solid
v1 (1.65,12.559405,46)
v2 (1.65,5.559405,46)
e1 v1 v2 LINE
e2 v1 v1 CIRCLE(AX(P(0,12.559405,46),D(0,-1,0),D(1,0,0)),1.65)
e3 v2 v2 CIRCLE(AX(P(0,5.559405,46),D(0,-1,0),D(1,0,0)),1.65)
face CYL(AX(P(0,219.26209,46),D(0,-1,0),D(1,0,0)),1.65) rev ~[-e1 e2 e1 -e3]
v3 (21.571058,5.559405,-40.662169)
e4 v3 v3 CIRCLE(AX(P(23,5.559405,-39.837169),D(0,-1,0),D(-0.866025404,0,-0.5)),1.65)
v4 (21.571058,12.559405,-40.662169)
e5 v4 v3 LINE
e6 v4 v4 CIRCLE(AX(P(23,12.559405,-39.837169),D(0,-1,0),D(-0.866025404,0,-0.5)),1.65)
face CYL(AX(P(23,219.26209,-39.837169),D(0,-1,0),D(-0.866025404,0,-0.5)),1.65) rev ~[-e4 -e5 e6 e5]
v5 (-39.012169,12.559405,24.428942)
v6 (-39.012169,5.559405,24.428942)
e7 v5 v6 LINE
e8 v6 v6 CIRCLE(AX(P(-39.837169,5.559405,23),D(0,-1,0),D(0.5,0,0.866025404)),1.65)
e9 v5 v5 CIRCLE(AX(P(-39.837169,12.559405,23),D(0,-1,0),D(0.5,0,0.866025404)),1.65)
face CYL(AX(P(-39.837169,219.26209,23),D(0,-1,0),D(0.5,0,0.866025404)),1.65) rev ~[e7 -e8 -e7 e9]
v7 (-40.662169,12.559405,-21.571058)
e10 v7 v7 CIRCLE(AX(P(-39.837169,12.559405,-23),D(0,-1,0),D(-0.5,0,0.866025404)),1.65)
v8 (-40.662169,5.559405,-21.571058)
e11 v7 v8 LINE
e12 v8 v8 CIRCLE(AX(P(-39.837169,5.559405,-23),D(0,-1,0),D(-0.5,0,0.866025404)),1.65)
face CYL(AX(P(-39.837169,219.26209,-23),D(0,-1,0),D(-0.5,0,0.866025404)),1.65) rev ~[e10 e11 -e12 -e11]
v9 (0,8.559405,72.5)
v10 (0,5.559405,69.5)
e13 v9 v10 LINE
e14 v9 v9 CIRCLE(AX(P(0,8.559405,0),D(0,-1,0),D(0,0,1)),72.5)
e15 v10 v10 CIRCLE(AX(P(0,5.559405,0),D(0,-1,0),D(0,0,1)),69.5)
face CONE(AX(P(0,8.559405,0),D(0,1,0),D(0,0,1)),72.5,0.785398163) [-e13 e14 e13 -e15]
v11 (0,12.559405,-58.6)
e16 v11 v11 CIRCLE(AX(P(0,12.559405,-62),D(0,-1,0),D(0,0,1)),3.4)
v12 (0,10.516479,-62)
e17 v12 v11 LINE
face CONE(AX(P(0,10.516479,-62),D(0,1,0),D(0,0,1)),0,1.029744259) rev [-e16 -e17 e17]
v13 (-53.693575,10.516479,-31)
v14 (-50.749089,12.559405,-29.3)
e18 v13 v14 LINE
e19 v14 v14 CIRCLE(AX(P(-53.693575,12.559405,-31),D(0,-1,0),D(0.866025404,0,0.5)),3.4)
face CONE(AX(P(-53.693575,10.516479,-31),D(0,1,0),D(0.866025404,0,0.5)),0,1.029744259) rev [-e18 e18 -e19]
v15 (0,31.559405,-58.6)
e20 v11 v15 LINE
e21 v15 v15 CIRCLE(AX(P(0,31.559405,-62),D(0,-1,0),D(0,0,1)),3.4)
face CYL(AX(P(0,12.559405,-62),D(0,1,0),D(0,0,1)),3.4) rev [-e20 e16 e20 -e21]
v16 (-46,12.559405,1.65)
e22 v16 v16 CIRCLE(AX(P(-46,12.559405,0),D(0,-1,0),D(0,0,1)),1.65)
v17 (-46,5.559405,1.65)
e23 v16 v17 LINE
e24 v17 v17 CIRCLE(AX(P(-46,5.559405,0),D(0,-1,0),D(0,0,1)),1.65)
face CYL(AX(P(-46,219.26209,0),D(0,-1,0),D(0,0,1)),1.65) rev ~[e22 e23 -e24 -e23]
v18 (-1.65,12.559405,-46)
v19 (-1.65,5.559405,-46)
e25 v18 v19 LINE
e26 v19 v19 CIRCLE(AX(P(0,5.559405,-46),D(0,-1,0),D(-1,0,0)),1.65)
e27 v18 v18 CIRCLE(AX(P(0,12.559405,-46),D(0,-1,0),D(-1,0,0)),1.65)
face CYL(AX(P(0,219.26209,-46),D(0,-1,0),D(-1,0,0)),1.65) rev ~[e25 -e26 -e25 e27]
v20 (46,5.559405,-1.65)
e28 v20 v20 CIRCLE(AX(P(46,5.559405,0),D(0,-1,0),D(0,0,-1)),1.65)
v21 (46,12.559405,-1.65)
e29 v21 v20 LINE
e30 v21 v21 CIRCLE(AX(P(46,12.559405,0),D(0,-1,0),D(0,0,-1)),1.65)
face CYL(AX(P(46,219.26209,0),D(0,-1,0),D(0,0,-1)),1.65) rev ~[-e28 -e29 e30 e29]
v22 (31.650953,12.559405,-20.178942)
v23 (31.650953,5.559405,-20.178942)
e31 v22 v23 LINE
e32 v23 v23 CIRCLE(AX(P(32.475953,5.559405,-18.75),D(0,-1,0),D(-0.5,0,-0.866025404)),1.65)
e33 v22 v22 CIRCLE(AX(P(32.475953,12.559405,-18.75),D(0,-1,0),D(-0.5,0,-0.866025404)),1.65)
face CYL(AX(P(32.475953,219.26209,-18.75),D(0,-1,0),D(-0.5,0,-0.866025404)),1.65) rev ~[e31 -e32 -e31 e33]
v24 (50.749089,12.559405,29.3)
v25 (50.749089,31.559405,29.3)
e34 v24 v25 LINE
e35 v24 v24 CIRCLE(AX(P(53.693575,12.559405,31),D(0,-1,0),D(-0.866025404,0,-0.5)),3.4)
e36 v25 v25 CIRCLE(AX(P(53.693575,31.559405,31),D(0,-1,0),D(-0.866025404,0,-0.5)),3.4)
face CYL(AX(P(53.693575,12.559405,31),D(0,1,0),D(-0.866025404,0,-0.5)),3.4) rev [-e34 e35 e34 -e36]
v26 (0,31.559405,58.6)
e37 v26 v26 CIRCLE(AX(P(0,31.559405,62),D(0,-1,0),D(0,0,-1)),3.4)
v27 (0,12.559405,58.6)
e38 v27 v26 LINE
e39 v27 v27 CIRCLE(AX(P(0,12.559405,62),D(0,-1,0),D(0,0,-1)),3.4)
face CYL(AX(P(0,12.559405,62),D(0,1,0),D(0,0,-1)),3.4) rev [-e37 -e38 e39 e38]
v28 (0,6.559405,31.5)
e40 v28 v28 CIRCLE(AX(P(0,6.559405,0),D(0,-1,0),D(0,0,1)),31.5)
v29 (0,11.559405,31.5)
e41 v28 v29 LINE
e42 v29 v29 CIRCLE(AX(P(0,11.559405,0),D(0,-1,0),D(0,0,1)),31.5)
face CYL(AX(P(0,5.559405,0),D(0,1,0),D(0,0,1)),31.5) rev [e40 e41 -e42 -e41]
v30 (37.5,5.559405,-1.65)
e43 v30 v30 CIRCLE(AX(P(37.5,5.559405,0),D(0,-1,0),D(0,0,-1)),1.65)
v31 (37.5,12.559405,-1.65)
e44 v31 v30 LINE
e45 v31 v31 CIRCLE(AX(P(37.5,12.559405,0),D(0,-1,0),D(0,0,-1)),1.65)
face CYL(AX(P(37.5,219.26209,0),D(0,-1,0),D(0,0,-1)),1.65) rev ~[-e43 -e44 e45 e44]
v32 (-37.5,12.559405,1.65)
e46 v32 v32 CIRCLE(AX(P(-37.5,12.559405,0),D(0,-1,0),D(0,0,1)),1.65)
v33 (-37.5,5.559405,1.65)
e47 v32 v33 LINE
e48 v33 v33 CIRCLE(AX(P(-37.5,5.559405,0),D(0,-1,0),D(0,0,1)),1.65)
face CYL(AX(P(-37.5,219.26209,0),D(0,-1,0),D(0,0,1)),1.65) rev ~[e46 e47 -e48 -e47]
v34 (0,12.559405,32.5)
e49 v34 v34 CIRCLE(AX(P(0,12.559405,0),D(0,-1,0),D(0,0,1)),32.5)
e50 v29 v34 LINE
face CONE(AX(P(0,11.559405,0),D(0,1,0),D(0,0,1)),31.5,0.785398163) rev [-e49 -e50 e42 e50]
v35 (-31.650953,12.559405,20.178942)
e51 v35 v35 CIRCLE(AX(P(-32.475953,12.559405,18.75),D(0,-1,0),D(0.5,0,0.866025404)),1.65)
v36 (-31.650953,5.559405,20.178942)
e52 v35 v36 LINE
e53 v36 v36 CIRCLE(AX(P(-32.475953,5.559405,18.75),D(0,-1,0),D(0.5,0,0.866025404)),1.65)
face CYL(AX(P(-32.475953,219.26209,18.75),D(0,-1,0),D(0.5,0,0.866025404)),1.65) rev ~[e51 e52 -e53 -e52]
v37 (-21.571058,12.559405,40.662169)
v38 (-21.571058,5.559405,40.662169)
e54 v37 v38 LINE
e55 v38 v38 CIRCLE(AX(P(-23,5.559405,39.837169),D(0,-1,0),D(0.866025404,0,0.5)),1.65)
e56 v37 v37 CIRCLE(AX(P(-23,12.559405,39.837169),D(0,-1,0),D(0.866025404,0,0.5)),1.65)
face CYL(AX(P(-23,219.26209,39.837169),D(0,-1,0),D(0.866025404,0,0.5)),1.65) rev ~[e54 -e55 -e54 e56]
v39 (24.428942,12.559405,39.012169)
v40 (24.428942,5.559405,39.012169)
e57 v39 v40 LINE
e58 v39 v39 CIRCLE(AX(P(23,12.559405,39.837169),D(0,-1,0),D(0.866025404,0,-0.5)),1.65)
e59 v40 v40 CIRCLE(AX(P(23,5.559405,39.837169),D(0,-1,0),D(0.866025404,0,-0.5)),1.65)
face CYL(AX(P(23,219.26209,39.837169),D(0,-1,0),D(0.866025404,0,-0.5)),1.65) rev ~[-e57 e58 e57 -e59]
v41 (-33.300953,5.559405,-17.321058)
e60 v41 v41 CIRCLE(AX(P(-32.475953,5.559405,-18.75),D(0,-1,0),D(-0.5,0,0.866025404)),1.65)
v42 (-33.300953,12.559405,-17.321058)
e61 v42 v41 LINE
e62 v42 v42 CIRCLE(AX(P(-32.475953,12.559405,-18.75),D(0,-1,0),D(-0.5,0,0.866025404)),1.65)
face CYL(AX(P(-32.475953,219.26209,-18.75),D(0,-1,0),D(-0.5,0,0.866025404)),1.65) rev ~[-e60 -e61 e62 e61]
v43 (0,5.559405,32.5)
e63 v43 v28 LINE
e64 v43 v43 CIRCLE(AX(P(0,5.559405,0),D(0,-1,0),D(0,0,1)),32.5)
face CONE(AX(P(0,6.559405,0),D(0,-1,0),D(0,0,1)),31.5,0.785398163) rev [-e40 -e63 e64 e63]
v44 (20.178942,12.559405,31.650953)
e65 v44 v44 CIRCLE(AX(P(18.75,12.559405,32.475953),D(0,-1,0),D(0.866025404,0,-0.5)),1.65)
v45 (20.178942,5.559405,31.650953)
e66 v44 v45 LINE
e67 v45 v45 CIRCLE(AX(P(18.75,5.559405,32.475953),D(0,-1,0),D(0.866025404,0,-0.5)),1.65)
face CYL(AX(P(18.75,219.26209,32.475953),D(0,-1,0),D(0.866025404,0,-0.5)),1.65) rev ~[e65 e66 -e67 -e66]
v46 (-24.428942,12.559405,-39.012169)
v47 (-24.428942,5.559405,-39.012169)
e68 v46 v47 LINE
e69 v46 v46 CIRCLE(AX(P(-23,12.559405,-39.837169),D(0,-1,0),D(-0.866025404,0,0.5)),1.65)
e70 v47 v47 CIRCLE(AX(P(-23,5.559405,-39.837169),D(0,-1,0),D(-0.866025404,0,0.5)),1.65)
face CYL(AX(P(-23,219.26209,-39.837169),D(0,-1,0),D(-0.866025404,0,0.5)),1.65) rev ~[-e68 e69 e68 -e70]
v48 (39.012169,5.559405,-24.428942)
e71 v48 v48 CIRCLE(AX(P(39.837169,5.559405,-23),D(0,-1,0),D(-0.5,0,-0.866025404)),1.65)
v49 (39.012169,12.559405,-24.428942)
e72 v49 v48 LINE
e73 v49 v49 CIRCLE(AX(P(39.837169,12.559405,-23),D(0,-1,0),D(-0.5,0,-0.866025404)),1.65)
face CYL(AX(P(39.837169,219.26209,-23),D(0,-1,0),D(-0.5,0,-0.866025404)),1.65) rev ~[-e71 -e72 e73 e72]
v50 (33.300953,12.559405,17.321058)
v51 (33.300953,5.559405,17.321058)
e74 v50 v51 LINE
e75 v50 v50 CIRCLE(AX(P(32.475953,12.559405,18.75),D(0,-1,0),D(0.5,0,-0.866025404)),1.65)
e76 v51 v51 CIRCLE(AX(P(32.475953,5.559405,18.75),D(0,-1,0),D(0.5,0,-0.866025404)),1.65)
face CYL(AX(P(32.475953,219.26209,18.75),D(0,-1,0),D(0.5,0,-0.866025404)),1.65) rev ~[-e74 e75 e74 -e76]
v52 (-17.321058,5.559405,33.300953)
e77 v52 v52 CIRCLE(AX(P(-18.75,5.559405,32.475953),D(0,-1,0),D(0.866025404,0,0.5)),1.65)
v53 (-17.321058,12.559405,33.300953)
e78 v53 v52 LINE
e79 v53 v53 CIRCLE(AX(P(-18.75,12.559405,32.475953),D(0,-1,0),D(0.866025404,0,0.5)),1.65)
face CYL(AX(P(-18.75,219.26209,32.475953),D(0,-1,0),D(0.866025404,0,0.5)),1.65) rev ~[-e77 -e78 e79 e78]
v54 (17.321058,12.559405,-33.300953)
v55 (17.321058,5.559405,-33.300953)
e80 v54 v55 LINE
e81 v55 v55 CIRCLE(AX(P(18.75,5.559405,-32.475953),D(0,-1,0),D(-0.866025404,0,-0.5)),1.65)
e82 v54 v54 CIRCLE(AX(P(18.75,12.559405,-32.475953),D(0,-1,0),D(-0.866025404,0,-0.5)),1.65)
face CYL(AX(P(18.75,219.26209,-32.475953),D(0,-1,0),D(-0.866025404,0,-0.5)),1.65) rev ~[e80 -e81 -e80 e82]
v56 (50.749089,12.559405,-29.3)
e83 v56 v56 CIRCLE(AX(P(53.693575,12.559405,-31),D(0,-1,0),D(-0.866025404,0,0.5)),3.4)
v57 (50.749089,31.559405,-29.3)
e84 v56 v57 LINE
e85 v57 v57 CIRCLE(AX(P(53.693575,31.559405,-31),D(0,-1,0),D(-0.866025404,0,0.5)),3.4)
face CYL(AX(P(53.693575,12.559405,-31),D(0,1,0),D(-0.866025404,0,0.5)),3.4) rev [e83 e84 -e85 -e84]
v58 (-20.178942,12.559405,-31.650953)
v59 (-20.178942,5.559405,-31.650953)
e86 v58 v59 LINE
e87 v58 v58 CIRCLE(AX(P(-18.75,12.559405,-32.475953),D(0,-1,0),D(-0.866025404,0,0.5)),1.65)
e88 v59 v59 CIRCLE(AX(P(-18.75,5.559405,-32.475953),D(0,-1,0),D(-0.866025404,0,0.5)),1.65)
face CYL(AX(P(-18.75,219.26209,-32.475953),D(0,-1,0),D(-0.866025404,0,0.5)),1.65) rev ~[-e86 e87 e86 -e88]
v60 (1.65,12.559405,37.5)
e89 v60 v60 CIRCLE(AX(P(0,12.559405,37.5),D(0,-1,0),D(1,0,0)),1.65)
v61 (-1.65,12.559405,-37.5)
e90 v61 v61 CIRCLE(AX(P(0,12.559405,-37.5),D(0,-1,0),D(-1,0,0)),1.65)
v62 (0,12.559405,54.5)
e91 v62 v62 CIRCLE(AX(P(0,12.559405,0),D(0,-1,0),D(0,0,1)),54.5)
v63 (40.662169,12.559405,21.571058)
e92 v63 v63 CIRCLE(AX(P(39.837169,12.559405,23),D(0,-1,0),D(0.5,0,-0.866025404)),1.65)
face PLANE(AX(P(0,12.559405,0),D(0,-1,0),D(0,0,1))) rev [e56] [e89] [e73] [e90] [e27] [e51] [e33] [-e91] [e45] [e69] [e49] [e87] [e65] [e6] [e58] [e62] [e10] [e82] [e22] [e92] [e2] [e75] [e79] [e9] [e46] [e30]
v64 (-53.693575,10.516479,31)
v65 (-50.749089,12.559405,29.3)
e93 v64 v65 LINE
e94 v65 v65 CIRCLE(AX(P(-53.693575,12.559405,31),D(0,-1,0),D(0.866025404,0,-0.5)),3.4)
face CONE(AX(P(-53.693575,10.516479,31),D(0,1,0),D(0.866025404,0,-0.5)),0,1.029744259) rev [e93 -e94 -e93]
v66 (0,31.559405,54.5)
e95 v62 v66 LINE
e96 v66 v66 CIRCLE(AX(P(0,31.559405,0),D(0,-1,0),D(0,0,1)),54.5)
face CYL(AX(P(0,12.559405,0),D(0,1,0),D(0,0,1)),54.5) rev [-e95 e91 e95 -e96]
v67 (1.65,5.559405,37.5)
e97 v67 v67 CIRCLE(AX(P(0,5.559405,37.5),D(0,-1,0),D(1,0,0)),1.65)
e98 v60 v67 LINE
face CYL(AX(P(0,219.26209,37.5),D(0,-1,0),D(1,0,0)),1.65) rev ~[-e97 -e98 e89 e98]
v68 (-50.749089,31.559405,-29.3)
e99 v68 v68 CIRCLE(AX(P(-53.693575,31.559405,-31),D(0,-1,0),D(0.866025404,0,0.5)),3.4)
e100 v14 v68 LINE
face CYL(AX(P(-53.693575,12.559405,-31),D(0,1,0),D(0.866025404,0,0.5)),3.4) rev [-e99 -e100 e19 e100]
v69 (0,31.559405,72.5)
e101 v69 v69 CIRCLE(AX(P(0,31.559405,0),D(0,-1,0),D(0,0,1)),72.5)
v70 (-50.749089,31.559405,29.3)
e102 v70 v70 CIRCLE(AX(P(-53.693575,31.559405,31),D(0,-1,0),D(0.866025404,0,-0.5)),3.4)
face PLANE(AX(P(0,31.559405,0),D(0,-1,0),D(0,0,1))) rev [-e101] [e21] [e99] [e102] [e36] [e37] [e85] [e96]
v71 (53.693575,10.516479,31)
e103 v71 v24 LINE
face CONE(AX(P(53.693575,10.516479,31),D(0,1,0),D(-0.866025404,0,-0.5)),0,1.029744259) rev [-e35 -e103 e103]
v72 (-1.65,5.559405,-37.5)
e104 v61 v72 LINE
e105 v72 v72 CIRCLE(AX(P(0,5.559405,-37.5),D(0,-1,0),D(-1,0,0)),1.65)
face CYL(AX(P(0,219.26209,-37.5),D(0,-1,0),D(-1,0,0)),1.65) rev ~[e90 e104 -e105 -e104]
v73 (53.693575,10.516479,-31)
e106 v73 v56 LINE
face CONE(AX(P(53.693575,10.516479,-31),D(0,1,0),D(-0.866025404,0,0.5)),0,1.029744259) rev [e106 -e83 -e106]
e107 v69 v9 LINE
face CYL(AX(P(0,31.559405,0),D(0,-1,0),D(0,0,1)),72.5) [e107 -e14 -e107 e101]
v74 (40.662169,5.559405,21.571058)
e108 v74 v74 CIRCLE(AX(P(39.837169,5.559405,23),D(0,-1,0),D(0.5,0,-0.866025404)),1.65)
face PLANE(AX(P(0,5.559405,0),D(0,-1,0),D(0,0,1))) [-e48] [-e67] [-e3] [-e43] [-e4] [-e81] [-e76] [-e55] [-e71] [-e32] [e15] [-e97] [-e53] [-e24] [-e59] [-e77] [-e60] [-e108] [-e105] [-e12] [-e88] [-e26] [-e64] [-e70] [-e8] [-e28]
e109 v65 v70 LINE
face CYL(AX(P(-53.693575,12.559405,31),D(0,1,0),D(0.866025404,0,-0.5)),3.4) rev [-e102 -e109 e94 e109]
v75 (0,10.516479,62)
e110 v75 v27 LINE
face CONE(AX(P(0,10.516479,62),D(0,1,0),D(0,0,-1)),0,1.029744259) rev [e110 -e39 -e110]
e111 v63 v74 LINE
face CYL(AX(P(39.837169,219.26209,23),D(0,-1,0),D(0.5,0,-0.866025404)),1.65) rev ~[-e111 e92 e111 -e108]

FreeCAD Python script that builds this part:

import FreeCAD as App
import Part
import Sketcher
Q = App.Units.Quantity


def edges_at(feature, points):
    """Names of the edges that pass closest to the given points."""
    edges = feature.Shape.Edges
    near = lambda p: min(range(len(edges)), key=lambda i: edges[i].distToShape(Part.Vertex(*p))[0])
    return sorted({f"Edge{near(p) + 1}" for p in points})


def add_polygon(sketch, points):
    """Adds a closed chain of lines whose ends are joined by coincident constraints."""
    first, n = sketch.GeometryCount, len(points)
    for a, b in zip(points, points[1:] + points[:1]):
        sketch.addGeometry(Part.LineSegment(App.Vector(*a, 0), App.Vector(*b, 0)), False)
    for i in range(n):
        sketch.addConstraint(Sketcher.Constraint("Coincident", first + i, 2, first + (i + 1) % n, 1))

doc = App.newDocument("Part")
params = doc.addObject("Spreadsheet::Sheet", "Params")
for row, (alias, value) in enumerate([
    ("sketch1_width", "18 mm"),
    ("sketch1_width2", "23 mm"),
    ("sketch1_height", "26 mm"),
    ("sketch1_height2", "19 mm"),
    ("revolution_angle", "360 deg"),
    ("chamfer_size", "3 mm"),
    ("chamfer2_size", "1 mm"),
    ("sketch2_width", "19 mm"),
    ("sketch2_height", "3.4 mm"),
    ("groove_angle", "360 deg"),
    ("sketch3_diameter", "3.3 mm"),
    ("hole_diameter", "3.3 mm"),
], start=1):
    params.set(f"A{row}", alias)
    params.set(f"B{row}", "=" + value)
    params.setAlias(f"B{row}", alias)

body = doc.addObject("PartDesign::Body", "Body")

# Sketch on XY plane
sketch1 = doc.addObject("Sketcher::SketchObject", "Sketch")
body.addObject(sketch1)
sketch1.AttachmentSupport = (doc.XY_Plane, [""])
sketch1.MapMode = "FlatFace"
add_polygon(sketch1, [(72, 6), (72, 32), (54, 32), (54, 13), (32, 13), (32, 6)])  # lines 0-5
sketch1.addConstraint([
    Sketcher.Constraint("Vertical", 0),
    Sketcher.Constraint("Horizontal", 1),
    Sketcher.Constraint("Vertical", 2),
    Sketcher.Constraint("Horizontal", 3),
    Sketcher.Constraint("Vertical", 4),
    Sketcher.Constraint("Horizontal", 5),
    Sketcher.Constraint("DistanceX", 1, 2, 1, 1, Q("18 mm")),
    Sketcher.Constraint("DistanceX", 3, 2, 3, 1, Q("23 mm")),
    Sketcher.Constraint("DistanceY", 0, 1, 0, 2, Q("26 mm")),
    Sketcher.Constraint("DistanceY", 2, 2, 2, 1, Q("19 mm")),
    Sketcher.Constraint("DistanceX", -1, 1, 0, 2, Q("72.5 mm")),
    Sketcher.Constraint("DistanceY", -1, 1, 0, 2, Q("31.559405 mm")),
])
sketch1.setExpression("Constraints[12]", "Params.sketch1_width")
sketch1.setExpression("Constraints[13]", "Params.sketch1_width2")
sketch1.setExpression("Constraints[14]", "Params.sketch1_height")
sketch1.setExpression("Constraints[15]", "Params.sketch1_height2")
revolution = doc.addObject("PartDesign::Revolution", "Revolution")
body.addObject(revolution)
revolution.Profile = sketch1
revolution.ReferenceAxis = (sketch1, ["V_Axis"])
revolution.setExpression("Angle", "Params.revolution_angle")
doc.recompute()

chamfer = doc.addObject("PartDesign::Chamfer", "Chamfer")
body.addObject(chamfer)
chamfer.Base = (revolution, edges_at(revolution, [(0, 5.559, -72.5)]))
chamfer.setExpression("Size", "Params.chamfer_size")
doc.recompute()

chamfer2 = doc.addObject("PartDesign::Chamfer", "Chamfer001")
body.addObject(chamfer2)
chamfer2.Base = (chamfer, edges_at(chamfer, [(0, 12.559, -31.5), (0, 5.559, -31.5)]))
chamfer2.setExpression("Size", "Params.chamfer2_size")

# Sketch on YZ plane
sketch2 = doc.addObject("Sketcher::SketchObject", "Sketch001")
body.addObject(sketch2)
sketch2.AttachmentSupport = (doc.YZ_Plane, [""])
sketch2.MapMode = "FlatFace"
add_polygon(sketch2, [(10.5, -62), (31.6, -62), (31.6, -58.6), (12.6, -58.6)])  # lines 0-3
sketch2.addGeometry(Part.LineSegment(App.Vector(31.6, -62, 0), App.Vector(10.5, -62, 0)), True)  # axis
sketch2.addConstraint([
    Sketcher.Constraint("Horizontal", 0),
    Sketcher.Constraint("Vertical", 1),
    Sketcher.Constraint("Horizontal", 2),
    Sketcher.Constraint("Horizontal", 4),
    Sketcher.Constraint("Coincident", 4, 1, 0, 2),
    Sketcher.Constraint("Equal", 0, 4),
    Sketcher.Constraint("DistanceX", 2, 2, 2, 1, Q("19 mm")),
    Sketcher.Constraint("Angle", 3, Q("-121 deg")),
    Sketcher.Constraint("DistanceY", 1, 1, 1, 2, Q("3.4 mm")),
    Sketcher.Constraint("DistanceY", 0, 2, -1, 1, Q("62 mm")),
    Sketcher.Constraint("DistanceX", -1, 1, 3, 2, Q("10.516479 mm")),
])
sketch2.setExpression("Constraints[10]", "Params.sketch2_width")
sketch2.setExpression("Constraints[12]", "Params.sketch2_height")
groove = doc.addObject("PartDesign::Groove", "Groove")
body.addObject(groove)
groove.Profile = sketch2
groove.ReferenceAxis = (sketch2, ["Axis0"])
groove.setExpression("Angle", "Params.groove_angle")
doc.recompute()

polarpattern = doc.addObject("PartDesign::PolarPattern", "PolarPattern")
body.addObject(polarpattern)
polarpattern.Originals = [groove]
polarpattern.Axis = (doc.Y_Axis, [""])
polarpattern.Angle = 360
polarpattern.Occurrences = 6
body.Tip = polarpattern

# Sketch on XZ plane
sketch3 = doc.addObject("Sketcher::SketchObject", "Sketch002")
body.addObject(sketch3)
sketch3.AttachmentSupport = (doc.XZ_Plane, [""])
sketch3.MapMode = "FlatFace"
sketch3.AttachmentOffset = App.Placement(App.Vector(0, 0, -12.559405), App.Rotation())
sketch3.addGeometry([
    Part.Circle(App.Vector(0, -46, 0), App.Vector(0, 0, 1), 1.6),
    Part.Circle(App.Vector(0, -37.5, 0), App.Vector(0, 0, 1), 1.6),
], False)
sketch3.addConstraint([
    Sketcher.Constraint("Equal", 0, 1),
    Sketcher.Constraint("PointOnObject", 0, 3, -2),
    Sketcher.Constraint("PointOnObject", 1, 3, -2),
    Sketcher.Constraint("Diameter", 0, Q("3.3 mm")),
    Sketcher.Constraint("DistanceY", 0, 3, -1, 1, Q("46 mm")),
    Sketcher.Constraint("DistanceY", 1, 3, -1, 1, Q("37.5 mm")),
])
sketch3.setExpression("Constraints[3]", "Params.sketch3_diameter")
doc.recompute()
hole = doc.addObject("PartDesign::Hole", "Hole")
body.addObject(hole)
hole.Profile = sketch3
hole.ThreadType = "None"
hole.setExpression("Diameter", "Params.hole_diameter")
hole.DepthType = "ThroughAll"
hole.Reversed = True
doc.recompute()

polarpattern2 = doc.addObject("PartDesign::PolarPattern", "PolarPattern001")
body.addObject(polarpattern2)
polarpattern2.Originals = [hole]
polarpattern2.Axis = (doc.Y_Axis, [""])
polarpattern2.Angle = 360
polarpattern2.Occurrences = 12
body.Tip = polarpattern2

doc.recompute()
